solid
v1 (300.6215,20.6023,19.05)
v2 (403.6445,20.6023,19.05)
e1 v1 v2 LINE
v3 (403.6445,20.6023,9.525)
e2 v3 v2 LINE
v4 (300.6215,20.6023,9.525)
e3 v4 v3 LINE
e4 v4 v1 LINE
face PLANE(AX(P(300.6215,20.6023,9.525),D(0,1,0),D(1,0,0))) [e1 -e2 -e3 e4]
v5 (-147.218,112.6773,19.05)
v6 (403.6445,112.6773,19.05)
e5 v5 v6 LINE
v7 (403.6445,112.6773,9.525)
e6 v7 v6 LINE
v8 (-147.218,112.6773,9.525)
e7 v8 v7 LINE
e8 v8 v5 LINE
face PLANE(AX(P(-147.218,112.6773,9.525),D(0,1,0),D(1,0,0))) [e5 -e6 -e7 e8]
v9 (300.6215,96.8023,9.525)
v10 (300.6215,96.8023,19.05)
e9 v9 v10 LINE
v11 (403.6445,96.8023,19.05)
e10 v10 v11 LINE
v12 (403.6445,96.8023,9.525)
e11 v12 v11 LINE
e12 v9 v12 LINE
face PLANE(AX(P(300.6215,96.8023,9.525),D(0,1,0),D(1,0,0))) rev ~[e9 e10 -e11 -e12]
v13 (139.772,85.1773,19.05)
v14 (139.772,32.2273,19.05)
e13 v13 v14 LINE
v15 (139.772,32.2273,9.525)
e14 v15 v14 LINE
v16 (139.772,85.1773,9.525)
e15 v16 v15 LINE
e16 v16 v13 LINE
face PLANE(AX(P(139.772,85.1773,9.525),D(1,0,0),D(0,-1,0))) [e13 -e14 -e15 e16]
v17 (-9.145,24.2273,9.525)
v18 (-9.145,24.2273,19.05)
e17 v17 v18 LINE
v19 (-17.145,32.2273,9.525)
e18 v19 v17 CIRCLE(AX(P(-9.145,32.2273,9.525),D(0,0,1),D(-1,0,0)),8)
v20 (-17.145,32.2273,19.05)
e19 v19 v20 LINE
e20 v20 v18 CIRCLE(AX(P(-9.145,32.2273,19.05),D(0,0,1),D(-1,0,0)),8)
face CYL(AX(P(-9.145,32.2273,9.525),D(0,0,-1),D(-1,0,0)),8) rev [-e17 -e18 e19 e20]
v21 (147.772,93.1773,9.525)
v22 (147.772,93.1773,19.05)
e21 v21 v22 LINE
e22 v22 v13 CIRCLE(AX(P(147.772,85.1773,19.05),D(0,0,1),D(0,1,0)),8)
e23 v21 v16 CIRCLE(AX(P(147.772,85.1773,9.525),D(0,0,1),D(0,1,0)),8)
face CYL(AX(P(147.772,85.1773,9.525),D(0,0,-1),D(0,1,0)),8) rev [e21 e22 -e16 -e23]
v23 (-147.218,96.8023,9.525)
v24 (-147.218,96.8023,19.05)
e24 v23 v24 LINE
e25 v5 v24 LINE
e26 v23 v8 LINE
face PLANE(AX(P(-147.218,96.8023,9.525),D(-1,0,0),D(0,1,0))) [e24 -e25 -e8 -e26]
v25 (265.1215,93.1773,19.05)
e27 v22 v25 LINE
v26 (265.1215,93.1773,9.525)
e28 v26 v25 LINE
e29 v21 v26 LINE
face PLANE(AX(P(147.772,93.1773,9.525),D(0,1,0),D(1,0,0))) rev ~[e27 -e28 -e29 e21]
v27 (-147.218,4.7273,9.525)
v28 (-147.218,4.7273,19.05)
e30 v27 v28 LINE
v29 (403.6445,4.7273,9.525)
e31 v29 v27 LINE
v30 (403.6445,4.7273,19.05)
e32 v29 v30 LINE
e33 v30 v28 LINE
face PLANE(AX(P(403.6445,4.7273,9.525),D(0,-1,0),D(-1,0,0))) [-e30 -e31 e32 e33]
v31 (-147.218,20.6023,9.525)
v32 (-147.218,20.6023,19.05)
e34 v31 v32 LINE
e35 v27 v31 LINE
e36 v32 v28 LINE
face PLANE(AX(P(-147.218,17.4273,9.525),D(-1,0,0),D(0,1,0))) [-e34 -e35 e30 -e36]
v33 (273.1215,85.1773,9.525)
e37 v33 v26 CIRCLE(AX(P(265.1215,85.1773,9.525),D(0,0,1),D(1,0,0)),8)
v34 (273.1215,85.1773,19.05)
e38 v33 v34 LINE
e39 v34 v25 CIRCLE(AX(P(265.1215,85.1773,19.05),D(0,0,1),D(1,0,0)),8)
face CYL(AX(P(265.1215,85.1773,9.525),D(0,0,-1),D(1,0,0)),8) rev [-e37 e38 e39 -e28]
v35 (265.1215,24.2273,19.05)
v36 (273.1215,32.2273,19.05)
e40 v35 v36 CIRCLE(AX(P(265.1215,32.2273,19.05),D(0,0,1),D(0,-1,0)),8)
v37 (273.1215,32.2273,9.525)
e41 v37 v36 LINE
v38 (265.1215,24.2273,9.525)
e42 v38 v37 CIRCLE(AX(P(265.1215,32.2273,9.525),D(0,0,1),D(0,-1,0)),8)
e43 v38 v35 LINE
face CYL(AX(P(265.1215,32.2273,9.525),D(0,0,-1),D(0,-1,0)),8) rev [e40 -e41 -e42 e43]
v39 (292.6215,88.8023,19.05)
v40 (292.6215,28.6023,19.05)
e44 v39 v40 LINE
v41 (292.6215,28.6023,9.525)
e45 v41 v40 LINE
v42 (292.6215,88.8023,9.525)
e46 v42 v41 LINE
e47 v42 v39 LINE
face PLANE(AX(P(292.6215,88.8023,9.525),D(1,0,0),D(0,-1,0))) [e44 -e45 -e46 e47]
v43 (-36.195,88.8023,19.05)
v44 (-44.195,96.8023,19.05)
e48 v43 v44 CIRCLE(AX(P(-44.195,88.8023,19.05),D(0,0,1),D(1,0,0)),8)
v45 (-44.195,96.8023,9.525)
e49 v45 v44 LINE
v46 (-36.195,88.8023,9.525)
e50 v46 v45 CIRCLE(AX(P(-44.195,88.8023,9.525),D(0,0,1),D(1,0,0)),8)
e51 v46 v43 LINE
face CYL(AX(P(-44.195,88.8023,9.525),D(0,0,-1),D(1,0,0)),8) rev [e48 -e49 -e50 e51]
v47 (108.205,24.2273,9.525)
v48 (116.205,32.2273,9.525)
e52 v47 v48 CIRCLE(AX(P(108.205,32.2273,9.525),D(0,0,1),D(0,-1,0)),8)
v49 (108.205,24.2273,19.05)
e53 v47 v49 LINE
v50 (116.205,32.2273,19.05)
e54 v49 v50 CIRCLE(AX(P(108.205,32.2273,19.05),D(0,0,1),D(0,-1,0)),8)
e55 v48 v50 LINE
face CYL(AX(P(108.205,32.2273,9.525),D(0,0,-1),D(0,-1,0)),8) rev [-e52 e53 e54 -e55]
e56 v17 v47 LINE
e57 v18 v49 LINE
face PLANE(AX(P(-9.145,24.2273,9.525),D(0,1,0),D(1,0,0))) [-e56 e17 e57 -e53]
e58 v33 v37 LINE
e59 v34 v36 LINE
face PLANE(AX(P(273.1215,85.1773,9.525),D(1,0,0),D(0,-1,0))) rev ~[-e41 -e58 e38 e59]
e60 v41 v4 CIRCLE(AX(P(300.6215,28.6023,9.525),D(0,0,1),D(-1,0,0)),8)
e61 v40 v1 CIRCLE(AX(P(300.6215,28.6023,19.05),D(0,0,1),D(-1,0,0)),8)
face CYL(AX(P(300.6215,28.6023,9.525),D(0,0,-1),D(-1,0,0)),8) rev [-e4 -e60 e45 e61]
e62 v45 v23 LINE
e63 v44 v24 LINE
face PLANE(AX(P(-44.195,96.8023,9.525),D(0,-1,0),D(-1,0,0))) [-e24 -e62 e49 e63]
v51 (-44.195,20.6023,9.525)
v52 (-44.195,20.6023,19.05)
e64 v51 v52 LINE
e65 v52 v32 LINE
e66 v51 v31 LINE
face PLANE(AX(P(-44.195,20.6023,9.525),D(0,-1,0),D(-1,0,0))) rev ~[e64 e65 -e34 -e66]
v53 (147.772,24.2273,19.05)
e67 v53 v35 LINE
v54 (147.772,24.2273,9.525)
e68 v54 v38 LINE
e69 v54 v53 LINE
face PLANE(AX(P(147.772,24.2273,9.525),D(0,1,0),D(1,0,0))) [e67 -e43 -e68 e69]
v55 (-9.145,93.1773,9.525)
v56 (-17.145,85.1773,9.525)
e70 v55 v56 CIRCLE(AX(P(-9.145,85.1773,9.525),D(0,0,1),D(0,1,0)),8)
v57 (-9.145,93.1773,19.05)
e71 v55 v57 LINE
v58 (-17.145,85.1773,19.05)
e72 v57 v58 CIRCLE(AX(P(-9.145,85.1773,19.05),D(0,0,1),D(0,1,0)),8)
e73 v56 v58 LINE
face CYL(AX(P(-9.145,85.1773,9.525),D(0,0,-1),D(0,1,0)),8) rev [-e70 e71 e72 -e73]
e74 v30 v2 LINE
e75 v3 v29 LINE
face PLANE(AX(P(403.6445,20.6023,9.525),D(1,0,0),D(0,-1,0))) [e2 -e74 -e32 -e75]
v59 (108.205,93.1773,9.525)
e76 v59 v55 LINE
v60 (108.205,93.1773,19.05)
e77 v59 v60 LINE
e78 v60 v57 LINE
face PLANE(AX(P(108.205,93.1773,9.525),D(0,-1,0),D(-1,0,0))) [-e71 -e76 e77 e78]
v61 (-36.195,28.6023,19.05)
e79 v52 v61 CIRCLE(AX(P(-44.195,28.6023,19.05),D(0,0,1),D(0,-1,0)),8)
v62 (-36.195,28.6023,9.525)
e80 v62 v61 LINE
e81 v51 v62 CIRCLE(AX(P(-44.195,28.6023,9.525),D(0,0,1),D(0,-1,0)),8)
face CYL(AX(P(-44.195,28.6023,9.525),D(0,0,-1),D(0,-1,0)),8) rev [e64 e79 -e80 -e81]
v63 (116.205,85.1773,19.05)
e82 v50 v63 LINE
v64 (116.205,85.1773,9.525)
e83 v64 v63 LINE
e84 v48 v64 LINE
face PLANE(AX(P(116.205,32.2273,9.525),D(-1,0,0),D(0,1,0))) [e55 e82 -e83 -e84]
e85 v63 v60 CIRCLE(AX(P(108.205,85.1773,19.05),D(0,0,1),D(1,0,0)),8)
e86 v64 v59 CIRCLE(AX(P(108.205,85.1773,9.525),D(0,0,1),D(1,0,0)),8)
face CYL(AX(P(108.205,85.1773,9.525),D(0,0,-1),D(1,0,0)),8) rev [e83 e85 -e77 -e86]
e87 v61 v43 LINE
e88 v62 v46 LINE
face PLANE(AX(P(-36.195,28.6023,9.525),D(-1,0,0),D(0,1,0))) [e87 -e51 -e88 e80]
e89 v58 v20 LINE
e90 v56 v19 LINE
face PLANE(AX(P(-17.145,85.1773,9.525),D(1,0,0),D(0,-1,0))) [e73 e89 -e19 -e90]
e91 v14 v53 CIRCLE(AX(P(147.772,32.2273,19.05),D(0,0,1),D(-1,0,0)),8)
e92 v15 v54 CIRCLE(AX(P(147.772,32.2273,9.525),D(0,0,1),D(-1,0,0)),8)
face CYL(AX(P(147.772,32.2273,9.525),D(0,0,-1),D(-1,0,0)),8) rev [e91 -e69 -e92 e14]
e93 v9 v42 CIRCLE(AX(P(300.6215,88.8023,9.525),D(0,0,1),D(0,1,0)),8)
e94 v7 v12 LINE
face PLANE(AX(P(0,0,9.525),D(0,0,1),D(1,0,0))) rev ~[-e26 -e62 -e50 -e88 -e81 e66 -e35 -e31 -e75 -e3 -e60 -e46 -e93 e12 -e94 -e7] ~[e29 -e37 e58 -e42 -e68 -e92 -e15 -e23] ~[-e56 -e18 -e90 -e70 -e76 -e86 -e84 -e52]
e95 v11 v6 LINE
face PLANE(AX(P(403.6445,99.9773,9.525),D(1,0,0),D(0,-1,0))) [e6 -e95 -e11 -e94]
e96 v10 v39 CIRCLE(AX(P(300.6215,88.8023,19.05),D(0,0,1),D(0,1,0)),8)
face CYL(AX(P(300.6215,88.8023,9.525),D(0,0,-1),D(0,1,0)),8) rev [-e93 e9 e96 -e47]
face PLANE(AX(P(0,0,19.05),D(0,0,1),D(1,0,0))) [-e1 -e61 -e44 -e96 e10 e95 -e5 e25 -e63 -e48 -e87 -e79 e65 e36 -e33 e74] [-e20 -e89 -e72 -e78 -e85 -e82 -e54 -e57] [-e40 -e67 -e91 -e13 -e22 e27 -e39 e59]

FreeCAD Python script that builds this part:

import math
import FreeCAD as App
import Part
import Sketcher

V = App.Vector
Q = App.Units.Quantity

doc = App.newDocument("Part")
body = doc.addObject("PartDesign::Body", "Body")

sketch1 = body.newObject("Sketcher::SketchObject", "Sketch")
sketch1.AttachmentSupport = (doc.getObject("XY_Plane"), [""])
sketch1.MapMode = "FlatFace"
sketch1.AttachmentOffset = App.Placement(V(0, 0, 0.375 * 25.4), App.Rotation())
sketch1.addGeometry([
    Part.LineSegment(V(293, 29, 0), V(293, 89, 0)),
    Part.ArcOfCircle(Part.Circle(V(301, 89, 0), V(0, 0, 1), 8), math.radians(90), math.radians(180)),
    Part.LineSegment(V(301, 97, 0), V(404, 97, 0)),
    Part.LineSegment(V(404, 97, 0), V(404, 113, 0)),
    Part.LineSegment(V(404, 113, 0), V(-147, 113, 0)),
    Part.LineSegment(V(-147, 113, 0), V(-147, 97, 0)),
    Part.LineSegment(V(-147, 97, 0), V(-44, 97, 0)),
    Part.ArcOfCircle(Part.Circle(V(-44, 89, 0), V(0, 0, 1), 8), math.radians(0), math.radians(90)),
    Part.LineSegment(V(-36, 89, 0), V(-36, 29, 0)),
    Part.ArcOfCircle(Part.Circle(V(-44, 29, 0), V(0, 0, 1), 8), math.radians(-90), math.radians(0)),
    Part.LineSegment(V(-44, 21, 0), V(-147, 21, 0)),
    Part.LineSegment(V(-147, 21, 0), V(-147, 5, 0)),
    Part.LineSegment(V(-147, 5, 0), V(404, 5, 0)),
    Part.LineSegment(V(404, 5, 0), V(404, 21, 0)),
    Part.LineSegment(V(404, 21, 0), V(301, 21, 0)),
    Part.ArcOfCircle(Part.Circle(V(301, 29, 0), V(0, 0, 1), 8), math.radians(180), math.radians(270)),
    Part.LineSegment(V(-17, 32, 0), V(-17, 85, 0)),
    Part.ArcOfCircle(Part.Circle(V(-9, 85, 0), V(0, 0, 1), 8), math.radians(90), math.radians(180)),
    Part.LineSegment(V(-9, 93, 0), V(108, 93, 0)),
    Part.ArcOfCircle(Part.Circle(V(108, 85, 0), V(0, 0, 1), 8), math.radians(0), math.radians(90)),
    Part.LineSegment(V(116, 85, 0), V(116, 32, 0)),
    Part.ArcOfCircle(Part.Circle(V(108, 32, 0), V(0, 0, 1), 8), math.radians(-90), math.radians(0)),
    Part.LineSegment(V(108, 24, 0), V(-9, 24, 0)),
    Part.ArcOfCircle(Part.Circle(V(-9, 32, 0), V(0, 0, 1), 8), math.radians(180), math.radians(270)),
    Part.ArcOfCircle(Part.Circle(V(265, 85, 0), V(0, 0, 1), 8), math.radians(0), math.radians(90)),
    Part.LineSegment(V(273, 85, 0), V(273, 32, 0)),
    Part.ArcOfCircle(Part.Circle(V(265, 32, 0), V(0, 0, 1), 8), math.radians(-90), math.radians(0)),
    Part.LineSegment(V(265, 24, 0), V(148, 24, 0)),
    Part.ArcOfCircle(Part.Circle(V(148, 32, 0), V(0, 0, 1), 8), math.radians(180), math.radians(270)),
    Part.LineSegment(V(140, 32, 0), V(140, 85, 0)),
    Part.ArcOfCircle(Part.Circle(V(148, 85, 0), V(0, 0, 1), 8), math.radians(90), math.radians(180)),
    Part.LineSegment(V(148, 93, 0), V(265, 93, 0)),
], False)
sketch1.addConstraint([
    Sketcher.Constraint("Tangent", 0, 2, 1, 2),
    Sketcher.Constraint("Tangent", 1, 1, 2, 1),
    Sketcher.Constraint("Coincident", 2, 2, 3, 1),
    Sketcher.Constraint("Coincident", 3, 2, 4, 1),
    Sketcher.Constraint("Coincident", 4, 2, 5, 1),
    Sketcher.Constraint("Coincident", 5, 2, 6, 1),
    Sketcher.Constraint("Tangent", 6, 2, 7, 2),
    Sketcher.Constraint("Tangent", 7, 1, 8, 1),
    Sketcher.Constraint("Tangent", 8, 2, 9, 2),
    Sketcher.Constraint("Tangent", 9, 1, 10, 1),
    Sketcher.Constraint("Coincident", 10, 2, 11, 1),
    Sketcher.Constraint("Coincident", 11, 2, 12, 1),
    Sketcher.Constraint("Coincident", 12, 2, 13, 1),
    Sketcher.Constraint("Coincident", 13, 2, 14, 1),
    Sketcher.Constraint("Tangent", 14, 2, 15, 2),
    Sketcher.Constraint("Tangent", 15, 1, 0, 1),
    Sketcher.Constraint("Tangent", 16, 2, 17, 2),
    Sketcher.Constraint("Tangent", 17, 1, 18, 1),
    Sketcher.Constraint("Tangent", 18, 2, 19, 2),
    Sketcher.Constraint("Tangent", 19, 1, 20, 1),
    Sketcher.Constraint("Tangent", 20, 2, 21, 2),
    Sketcher.Constraint("Tangent", 21, 1, 22, 1),
    Sketcher.Constraint("Tangent", 22, 2, 23, 2),
    Sketcher.Constraint("Tangent", 23, 1, 16, 1),
    Sketcher.Constraint("Tangent", 24, 1, 25, 1),
    Sketcher.Constraint("Tangent", 25, 2, 26, 2),
    Sketcher.Constraint("Tangent", 26, 1, 27, 1),
    Sketcher.Constraint("Tangent", 27, 2, 28, 2),
    Sketcher.Constraint("Tangent", 28, 1, 29, 1),
    Sketcher.Constraint("Tangent", 29, 2, 30, 2),
    Sketcher.Constraint("Tangent", 30, 1, 31, 1),
    Sketcher.Constraint("Tangent", 31, 2, 24, 2),
    Sketcher.Constraint("Vertical", 0),
    Sketcher.Constraint("Horizontal", 2),
    Sketcher.Constraint("Vertical", 3),
    Sketcher.Constraint("Horizontal", 4),
    Sketcher.Constraint("Vertical", 5),
    Sketcher.Constraint("Horizontal", 6),
    Sketcher.Constraint("Vertical", 8),
    Sketcher.Constraint("Horizontal", 10),
    Sketcher.Constraint("Vertical", 11),
    Sketcher.Constraint("Horizontal", 12),
    Sketcher.Constraint("Vertical", 13),
    Sketcher.Constraint("Horizontal", 14),
    Sketcher.Constraint("Vertical", 16),
    Sketcher.Constraint("Horizontal", 18),
    Sketcher.Constraint("Vertical", 20),
    Sketcher.Constraint("Horizontal", 22),
    Sketcher.Constraint("Vertical", 25),
    Sketcher.Constraint("Horizontal", 27),
    Sketcher.Constraint("Vertical", 29),
    Sketcher.Constraint("Horizontal", 31),
    Sketcher.Constraint("Equal", 1, 7),
    Sketcher.Constraint("Equal", 7, 9),
    Sketcher.Constraint("Equal", 9, 15),
    Sketcher.Constraint("Equal", 15, 17),
    Sketcher.Constraint("Equal", 17, 19),
    Sketcher.Constraint("Equal", 19, 21),
    Sketcher.Constraint("Equal", 21, 23),
    Sketcher.Constraint("Equal", 23, 24),
    Sketcher.Constraint("Equal", 24, 26),
    Sketcher.Constraint("Equal", 26, 28),
    Sketcher.Constraint("Equal", 28, 30),
    Sketcher.Constraint("Horizontal", 1, 3, 7, 3),
    Sketcher.Constraint("Horizontal", 9, 3, 15, 3),
    Sketcher.Constraint("Horizontal", 19, 3, 24, 3),
    Sketcher.Constraint("Horizontal", 23, 3, 26, 3),
    Sketcher.Constraint("Vertical", 5, 2, 10, 2),
    Sketcher.Constraint("Vertical", 3, 2, 12, 2),
    Sketcher.Constraint("Equal", 2, 6),
    Sketcher.Constraint("Equal", 5, 11),
    Sketcher.Constraint("DistanceY", 10, 2, 5, 2, Q("3 in")),
    Sketcher.Constraint("DistanceX", 4, 2, 4, 1, Q("21.6875 in")),
    Sketcher.Constraint("DistanceY", 3, 1, 3, 2, Q("0.625 in")),
    Sketcher.Constraint("Radius", 1, Q("8 mm")),
    Sketcher.Constraint("DistanceX", 7, 3, 19, 3, Q("6 in")),
    Sketcher.Constraint("DistanceX", 0, 2, 2, 2, Q("111.023 mm")),
    Sketcher.Constraint("DistanceX", 7, 1, 16, 2, Q("0.75 in")),
    Sketcher.Constraint("DistanceX", 24, 1, 0, 2, Q("19.5 mm")),
    Sketcher.Constraint("DistanceX", 7, 1, -1, 1, Q("1.425 in")),
    Sketcher.Constraint("DistanceX", 27, 2, 27, 1, Q("117.3495 mm")),
    Sketcher.Constraint("DistanceY", 16, 1, 16, 2, Q("52.95 mm")),
    Sketcher.Constraint("DistanceY", -1, 1, 21, 3, Q("1.2688 in")),
    Sketcher.Constraint("DistanceY", -1, 1, 1, 3, Q("88.8023 mm")),
])
pad1 = body.newObject("PartDesign::Pad", "Pad")
pad1.Profile = sketch1
pad1.Length = Q("0.375 in")

doc.recompute()
